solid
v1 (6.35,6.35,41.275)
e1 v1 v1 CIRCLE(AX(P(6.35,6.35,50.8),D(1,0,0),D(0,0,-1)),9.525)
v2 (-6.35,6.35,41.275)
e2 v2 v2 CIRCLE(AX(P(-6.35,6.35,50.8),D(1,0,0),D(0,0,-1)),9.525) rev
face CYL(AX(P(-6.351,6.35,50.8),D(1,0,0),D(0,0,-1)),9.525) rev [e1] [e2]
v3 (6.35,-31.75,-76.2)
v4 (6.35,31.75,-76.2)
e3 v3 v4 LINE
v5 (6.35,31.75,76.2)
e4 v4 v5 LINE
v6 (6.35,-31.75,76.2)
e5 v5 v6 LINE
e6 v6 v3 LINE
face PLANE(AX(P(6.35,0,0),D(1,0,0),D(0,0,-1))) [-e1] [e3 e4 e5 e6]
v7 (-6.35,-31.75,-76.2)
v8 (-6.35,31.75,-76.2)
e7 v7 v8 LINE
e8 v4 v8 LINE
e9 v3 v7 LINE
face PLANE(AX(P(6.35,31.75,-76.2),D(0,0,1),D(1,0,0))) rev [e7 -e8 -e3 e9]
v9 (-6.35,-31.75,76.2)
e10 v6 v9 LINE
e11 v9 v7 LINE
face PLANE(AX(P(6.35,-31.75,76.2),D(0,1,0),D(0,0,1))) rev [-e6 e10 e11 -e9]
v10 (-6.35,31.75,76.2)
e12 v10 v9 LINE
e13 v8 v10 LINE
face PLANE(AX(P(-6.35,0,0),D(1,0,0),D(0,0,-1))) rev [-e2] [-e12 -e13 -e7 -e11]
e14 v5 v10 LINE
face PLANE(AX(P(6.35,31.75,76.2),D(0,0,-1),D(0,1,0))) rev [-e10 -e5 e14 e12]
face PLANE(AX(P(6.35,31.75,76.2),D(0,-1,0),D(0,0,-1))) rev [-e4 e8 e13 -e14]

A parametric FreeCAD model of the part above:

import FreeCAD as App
import Part
import Sketcher
from FreeCAD import Vector
Q = App.Units.Quantity


def add_polygon(sketch, points):
    """Adds a closed chain of lines whose ends are joined by coincident constraints."""
    first, n = sketch.GeometryCount, len(points)
    for a, b in zip(points, points[1:] + points[:1]):
        sketch.addGeometry(Part.LineSegment(App.Vector(*a, 0), App.Vector(*b, 0)), False)
    for i in range(n):
        sketch.addConstraint(Sketcher.Constraint("Coincident", first + i, 2, first + (i + 1) % n, 1))

doc = App.newDocument("Part")
body = doc.addObject("PartDesign::Body", "Body")

# Sketch on YZ plane
sketch1 = body.newObject("Sketcher::SketchObject", "Sketch")
sketch1.AttachmentSupport = (doc.getObject("YZ_Plane"), [""])
sketch1.MapMode = "FlatFace"
add_polygon(sketch1, [(32, 76), (-32, 76), (-32, -76), (32, -76)])  # lines 0-3
sketch1.addConstraint(Sketcher.Constraint("Horizontal", 0))
sketch1.addConstraint(Sketcher.Constraint("Vertical", 1))
sketch1.addConstraint(Sketcher.Constraint("Horizontal", 2))
sketch1.addConstraint(Sketcher.Constraint("Vertical", 3))
sketch1.addConstraint(Sketcher.Constraint("Symmetric", 0, 2, 2, 2, -1, 1))
sketch1.addConstraint(Sketcher.Constraint("DistanceY", 1, 2, 1, 1, Q("6 in")))
sketch1.addConstraint(Sketcher.Constraint("DistanceX", 0, 2, 0, 1, Q("2.5 in")))
pad1 = body.newObject("PartDesign::Pad", "Pad")
pad1.Profile = sketch1
pad1.Length = Q("0.5 in")
pad1.Midplane = True

# Sketch on YZ plane
sketch2 = body.newObject("Sketcher::SketchObject", "Sketch001")
sketch2.AttachmentSupport = (doc.getObject("YZ_Plane"), [""])
sketch2.MapMode = "FlatFace"
sketch2.AttachmentOffset = App.Placement(Vector(0, 0, 0.25 * 25.4), App.Rotation())
sketch2.addGeometry(Part.Circle(Vector(6, 51, 0), Vector(0, 0, 1), 10), False)
sketch2.addConstraint(Sketcher.Constraint("Diameter", 0, Q("0.75 in")))
sketch2.addConstraint(Sketcher.Constraint("DistanceY", -1, 1, 0, 3, Q("2 in")))
sketch2.addConstraint(Sketcher.Constraint("DistanceX", -1, 1, 0, 3, Q("0.25 in")))
pocket1 = body.newObject("PartDesign::Pocket", "Pocket")
pocket1.Profile = sketch2
pocket1.Type = "UpToFirst"

doc.recompute()
